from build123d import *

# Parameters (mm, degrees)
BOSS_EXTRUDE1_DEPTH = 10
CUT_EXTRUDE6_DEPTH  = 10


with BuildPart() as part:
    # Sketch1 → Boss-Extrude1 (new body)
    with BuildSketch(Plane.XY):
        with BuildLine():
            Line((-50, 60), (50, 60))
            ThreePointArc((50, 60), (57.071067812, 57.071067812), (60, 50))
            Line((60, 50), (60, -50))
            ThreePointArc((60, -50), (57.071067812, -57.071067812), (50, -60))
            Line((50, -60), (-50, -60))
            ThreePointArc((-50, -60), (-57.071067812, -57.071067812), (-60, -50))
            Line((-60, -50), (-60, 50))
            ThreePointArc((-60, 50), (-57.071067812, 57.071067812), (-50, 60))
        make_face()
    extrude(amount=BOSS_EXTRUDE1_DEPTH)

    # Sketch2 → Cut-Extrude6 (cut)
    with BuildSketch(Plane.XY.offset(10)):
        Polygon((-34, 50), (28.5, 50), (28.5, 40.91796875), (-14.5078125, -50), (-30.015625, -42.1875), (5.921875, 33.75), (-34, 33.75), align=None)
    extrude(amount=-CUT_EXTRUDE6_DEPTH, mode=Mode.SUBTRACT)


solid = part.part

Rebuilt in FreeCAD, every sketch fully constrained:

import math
import FreeCAD as App
import Part
import Sketcher

doc = App.newDocument("Part")
body = doc.addObject("PartDesign::Body", "Body")

sketch1 = doc.addObject("Sketcher::SketchObject", "Sketch")
body.addObject(sketch1)
sketch1.AttachmentSupport = (doc.XY_Plane, [""])
sketch1.MapMode = "FlatFace"
sketch1.addGeometry([
    Part.LineSegment(App.Vector(50, 60, 0), App.Vector(-50, 60, 0)),
    Part.ArcOfCircle(Part.Circle(App.Vector(-50, 50, 0), App.Vector(0, 0, 1), 10), math.radians(90), math.radians(180)),
    Part.LineSegment(App.Vector(-60, 50, 0), App.Vector(-60, -50, 0)),
    Part.ArcOfCircle(Part.Circle(App.Vector(-50, -50, 0), App.Vector(0, 0, 1), 10), math.radians(180), math.radians(270)),
    Part.LineSegment(App.Vector(-50, -60, 0), App.Vector(50, -60, 0)),
    Part.ArcOfCircle(Part.Circle(App.Vector(50, -50, 0), App.Vector(0, 0, 1), 10), math.radians(-90), math.radians(0)),
    Part.LineSegment(App.Vector(60, -50, 0), App.Vector(60, 50, 0)),
    Part.ArcOfCircle(Part.Circle(App.Vector(50, 50, 0), App.Vector(0, 0, 1), 10), math.radians(0), math.radians(90)),
], False)
sketch1.addConstraint([
    Sketcher.Constraint("Tangent", 0, 2, 1, 1),
    Sketcher.Constraint("Tangent", 1, 2, 2, 1),
    Sketcher.Constraint("Tangent", 2, 2, 3, 1),
    Sketcher.Constraint("Tangent", 3, 2, 4, 1),
    Sketcher.Constraint("Tangent", 4, 2, 5, 1),
    Sketcher.Constraint("Tangent", 5, 2, 6, 1),
    Sketcher.Constraint("Tangent", 6, 2, 7, 1),
    Sketcher.Constraint("Tangent", 7, 2, 0, 1),
    Sketcher.Constraint("Horizontal", 0),
    Sketcher.Constraint("Vertical", 2),
    Sketcher.Constraint("Horizontal", 4),
    Sketcher.Constraint("Vertical", 6),
    Sketcher.Constraint("Equal", 1, 3),
    Sketcher.Constraint("Equal", 3, 5),
    Sketcher.Constraint("Equal", 5, 7),
    Sketcher.Constraint("Symmetric", 1, 3, 5, 3, -1, 1),
    Sketcher.Constraint("Equal", 4, 2),
    Sketcher.Constraint("Radius", 1, 10.0),
    Sketcher.Constraint("DistanceX", 0, 2, 0, 1, 100.0),
])
pad1 = doc.addObject("PartDesign::Pad", "Pad")
body.addObject(pad1)
pad1.Profile = sketch1
pad1.Length = 10

sketch2 = doc.addObject("Sketcher::SketchObject", "Sketch001")
body.addObject(sketch2)
sketch2.AttachmentSupport = (doc.XY_Plane, [""])
sketch2.MapMode = "FlatFace"
sketch2.AttachmentOffset = App.Placement(App.Vector(0, 0, 10), App.Rotation())
sketch2.addGeometry([
    Part.LineSegment(App.Vector(28, 50, 0), App.Vector(-34, 50, 0)),
    Part.LineSegment(App.Vector(-34, 50, 0), App.Vector(-34, 34, 0)),
    Part.LineSegment(App.Vector(-34, 34, 0), App.Vector(6, 34, 0)),
    Part.LineSegment(App.Vector(6, 34, 0), App.Vector(-30, -42, 0)),
    Part.LineSegment(App.Vector(-30, -42, 0), App.Vector(-15, -50, 0)),
    Part.LineSegment(App.Vector(-15, -50, 0), App.Vector(28, 41, 0)),
    Part.LineSegment(App.Vector(28, 41, 0), App.Vector(28, 50, 0)),
], False)
sketch2.addConstraint([
    Sketcher.Constraint("Coincident", 0, 2, 1, 1),
    Sketcher.Constraint("Coincident", 1, 2, 2, 1),
    Sketcher.Constraint("Coincident", 2, 2, 3, 1),
    Sketcher.Constraint("Coincident", 3, 2, 4, 1),
    Sketcher.Constraint("Coincident", 4, 2, 5, 1),
    Sketcher.Constraint("Coincident", 5, 2, 6, 1),
    Sketcher.Constraint("Coincident", 6, 2, 0, 1),
    Sketcher.Constraint("Horizontal", 0),
    Sketcher.Constraint("Vertical", 1),
    Sketcher.Constraint("Horizontal", 2),
    Sketcher.Constraint("Vertical", 6),
    Sketcher.Constraint("DistanceX", 0, 2, 0, 1, 62.5),
    Sketcher.Constraint("DistanceX", 0, 2, -1, 1, 34.0),
    Sketcher.Constraint("DistanceY", -1, 1, 0, 2, 50.0),
    Sketcher.Constraint("DistanceY", 4, 2, -1, 1, 50.0),
    Sketcher.Constraint("DistanceY", 1, 2, 1, 1, 16.25),
    Sketcher.Constraint("DistanceY", 6, 1, 6, 2, 9.082031),
    Sketcher.Constraint("DistanceY", 3, 2, -1, 1, 42.1875),
    Sketcher.Constraint("DistanceX", 3, 2, 2, 2, 35.9375),
    Sketcher.Constraint("Distance", 5, 100.57708),
    Sketcher.Constraint("DistanceX", 2, 1, 2, 2, 39.921875),
])
pocket1 = doc.addObject("PartDesign::Pocket", "Pocket")
body.addObject(pocket1)
pocket1.Profile = sketch2
pocket1.Length = 10

doc.recompute()
